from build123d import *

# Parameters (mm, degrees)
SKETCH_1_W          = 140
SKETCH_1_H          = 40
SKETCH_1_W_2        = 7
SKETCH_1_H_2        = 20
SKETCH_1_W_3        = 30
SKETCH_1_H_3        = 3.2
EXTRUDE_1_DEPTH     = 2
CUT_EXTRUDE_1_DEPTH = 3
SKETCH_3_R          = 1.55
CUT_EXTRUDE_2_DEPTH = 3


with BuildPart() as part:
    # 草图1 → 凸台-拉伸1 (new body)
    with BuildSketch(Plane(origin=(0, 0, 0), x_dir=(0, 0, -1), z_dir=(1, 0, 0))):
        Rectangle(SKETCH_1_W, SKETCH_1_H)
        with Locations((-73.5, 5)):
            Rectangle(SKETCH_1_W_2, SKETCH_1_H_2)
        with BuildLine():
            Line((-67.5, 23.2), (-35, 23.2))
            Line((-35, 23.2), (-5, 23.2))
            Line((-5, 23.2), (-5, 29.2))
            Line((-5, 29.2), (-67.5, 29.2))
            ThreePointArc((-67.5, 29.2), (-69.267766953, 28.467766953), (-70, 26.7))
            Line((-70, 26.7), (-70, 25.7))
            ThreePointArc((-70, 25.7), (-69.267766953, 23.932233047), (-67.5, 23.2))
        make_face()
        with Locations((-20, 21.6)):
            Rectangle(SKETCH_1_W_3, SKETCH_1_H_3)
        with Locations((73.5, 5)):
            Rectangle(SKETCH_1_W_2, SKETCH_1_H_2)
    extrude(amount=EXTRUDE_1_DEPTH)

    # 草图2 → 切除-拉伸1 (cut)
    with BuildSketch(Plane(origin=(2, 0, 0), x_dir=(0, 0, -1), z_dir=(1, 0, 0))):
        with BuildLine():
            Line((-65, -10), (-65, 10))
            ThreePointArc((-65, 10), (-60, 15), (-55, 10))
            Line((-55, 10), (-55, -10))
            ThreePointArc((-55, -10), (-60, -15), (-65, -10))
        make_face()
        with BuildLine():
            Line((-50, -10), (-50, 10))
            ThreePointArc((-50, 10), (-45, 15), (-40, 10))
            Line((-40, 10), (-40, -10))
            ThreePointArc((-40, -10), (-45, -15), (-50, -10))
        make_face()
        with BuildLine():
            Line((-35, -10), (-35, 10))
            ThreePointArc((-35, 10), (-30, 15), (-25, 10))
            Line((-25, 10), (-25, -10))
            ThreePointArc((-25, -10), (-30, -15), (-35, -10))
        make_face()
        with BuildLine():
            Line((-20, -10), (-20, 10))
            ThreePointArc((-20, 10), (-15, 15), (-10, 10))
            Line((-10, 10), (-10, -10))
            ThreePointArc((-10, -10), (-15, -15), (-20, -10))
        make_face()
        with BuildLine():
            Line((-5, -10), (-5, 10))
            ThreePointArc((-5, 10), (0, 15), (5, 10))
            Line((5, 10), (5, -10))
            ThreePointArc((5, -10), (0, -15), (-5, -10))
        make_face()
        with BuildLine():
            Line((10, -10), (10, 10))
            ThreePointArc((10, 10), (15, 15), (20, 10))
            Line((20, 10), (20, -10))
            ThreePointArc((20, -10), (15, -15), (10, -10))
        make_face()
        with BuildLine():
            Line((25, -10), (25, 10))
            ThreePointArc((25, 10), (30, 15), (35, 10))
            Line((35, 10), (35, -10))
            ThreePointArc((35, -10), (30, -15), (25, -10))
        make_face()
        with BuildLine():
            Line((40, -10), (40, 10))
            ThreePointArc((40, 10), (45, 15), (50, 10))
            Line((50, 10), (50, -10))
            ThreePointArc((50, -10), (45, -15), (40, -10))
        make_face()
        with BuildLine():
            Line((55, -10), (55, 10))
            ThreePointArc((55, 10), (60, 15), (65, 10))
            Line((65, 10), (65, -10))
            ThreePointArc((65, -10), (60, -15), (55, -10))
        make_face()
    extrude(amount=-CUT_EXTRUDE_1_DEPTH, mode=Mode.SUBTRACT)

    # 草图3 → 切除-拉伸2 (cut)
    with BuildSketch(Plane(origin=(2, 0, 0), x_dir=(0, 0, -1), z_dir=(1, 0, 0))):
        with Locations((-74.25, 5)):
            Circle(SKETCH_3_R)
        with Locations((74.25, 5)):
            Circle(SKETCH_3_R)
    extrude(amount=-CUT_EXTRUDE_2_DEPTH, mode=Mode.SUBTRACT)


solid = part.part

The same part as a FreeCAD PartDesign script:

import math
import FreeCAD as App
import Part
import Sketcher
from FreeCAD import Vector
Q = App.Units.Quantity

doc = App.newDocument("Part")
body = doc.addObject("PartDesign::Body", "Body")

sketch1 = body.newObject("Sketcher::SketchObject", "Sketch")
sketch1.AttachmentSupport = (doc.getObject("YZ_Plane"), [""])
sketch1.MapMode = "FlatFace"
sketch1.addGeometry(Part.LineSegment(Vector(-5, 70, 0), Vector(-20, 70, 0)), False)
sketch1.addGeometry(Part.LineSegment(Vector(-20, 70, 0), Vector(-20, -70, 0)), False)
sketch1.addGeometry(Part.LineSegment(Vector(-20, -70, 0), Vector(-5, -70, 0)), False)
sketch1.addGeometry(Part.LineSegment(Vector(-5, -70, 0), Vector(-5, -77, 0)), False)
sketch1.addGeometry(Part.LineSegment(Vector(-5, -77, 0), Vector(15, -77, 0)), False)
sketch1.addGeometry(Part.LineSegment(Vector(15, -77, 0), Vector(15, -70, 0)), False)
sketch1.addGeometry(Part.LineSegment(Vector(15, -70, 0), Vector(20, -70, 0)), False)
sketch1.addGeometry(Part.LineSegment(Vector(20, -70, 0), Vector(20, 5, 0)), False)
sketch1.addGeometry(Part.LineSegment(Vector(20, 5, 0), Vector(29.2, 5, 0)), False)
sketch1.addGeometry(Part.LineSegment(Vector(29.2, 5, 0), Vector(29.2, 67.5, 0)), False)
sketch1.addGeometry(Part.ArcOfCircle(Part.Circle(Vector(26.7, 67.5, 0), Vector(0, 0, 1), 2.5), math.radians(0), math.radians(90)), False)
sketch1.addGeometry(Part.LineSegment(Vector(26.7, 70, 0), Vector(25.7, 70, 0)), False)
sketch1.addGeometry(Part.ArcOfCircle(Part.Circle(Vector(25.7, 67.5, 0), Vector(0, 0, 1), 2.5), math.radians(90), math.radians(180)), False)
sketch1.addGeometry(Part.LineSegment(Vector(23.2, 67.5, 0), Vector(23.2, 35, 0)), False)
sketch1.addGeometry(Part.LineSegment(Vector(23.2, 35, 0), Vector(20, 35, 0)), False)
sketch1.addGeometry(Part.LineSegment(Vector(20, 35, 0), Vector(20, 70, 0)), False)
sketch1.addGeometry(Part.LineSegment(Vector(20, 70, 0), Vector(15, 70, 0)), False)
sketch1.addGeometry(Part.LineSegment(Vector(15, 70, 0), Vector(15, 77, 0)), False)
sketch1.addGeometry(Part.LineSegment(Vector(15, 77, 0), Vector(-5, 77, 0)), False)
sketch1.addGeometry(Part.LineSegment(Vector(-5, 77, 0), Vector(-5, 70, 0)), False)
sketch1.addConstraint(Sketcher.Constraint("Coincident", 0, 2, 1, 1))
sketch1.addConstraint(Sketcher.Constraint("Coincident", 1, 2, 2, 1))
sketch1.addConstraint(Sketcher.Constraint("Coincident", 2, 2, 3, 1))
sketch1.addConstraint(Sketcher.Constraint("Coincident", 3, 2, 4, 1))
sketch1.addConstraint(Sketcher.Constraint("Coincident", 4, 2, 5, 1))
sketch1.addConstraint(Sketcher.Constraint("Coincident", 5, 2, 6, 1))
sketch1.addConstraint(Sketcher.Constraint("Coincident", 6, 2, 7, 1))
sketch1.addConstraint(Sketcher.Constraint("Coincident", 7, 2, 8, 1))
sketch1.addConstraint(Sketcher.Constraint("Coincident", 8, 2, 9, 1))
sketch1.addConstraint(Sketcher.Constraint("Tangent", 9, 2, 10, 1))
sketch1.addConstraint(Sketcher.Constraint("Tangent", 10, 2, 11, 1))
sketch1.addConstraint(Sketcher.Constraint("Tangent", 11, 2, 12, 1))
sketch1.addConstraint(Sketcher.Constraint("Tangent", 12, 2, 13, 1))
sketch1.addConstraint(Sketcher.Constraint("Coincident", 13, 2, 14, 1))
sketch1.addConstraint(Sketcher.Constraint("Coincident", 14, 2, 15, 1))
sketch1.addConstraint(Sketcher.Constraint("Coincident", 15, 2, 16, 1))
sketch1.addConstraint(Sketcher.Constraint("Coincident", 16, 2, 17, 1))
sketch1.addConstraint(Sketcher.Constraint("Coincident", 17, 2, 18, 1))
sketch1.addConstraint(Sketcher.Constraint("Coincident", 18, 2, 19, 1))
sketch1.addConstraint(Sketcher.Constraint("Coincident", 19, 2, 0, 1))
sketch1.addConstraint(Sketcher.Constraint("Horizontal", 0))
sketch1.addConstraint(Sketcher.Constraint("Vertical", 1))
sketch1.addConstraint(Sketcher.Constraint("Horizontal", 2))
sketch1.addConstraint(Sketcher.Constraint("Vertical", 3))
sketch1.addConstraint(Sketcher.Constraint("Horizontal", 4))
sketch1.addConstraint(Sketcher.Constraint("Vertical", 5))
sketch1.addConstraint(Sketcher.Constraint("Horizontal", 6))
sketch1.addConstraint(Sketcher.Constraint("Vertical", 7))
sketch1.addConstraint(Sketcher.Constraint("Horizontal", 8))
sketch1.addConstraint(Sketcher.Constraint("Vertical", 9))
sketch1.addConstraint(Sketcher.Constraint("Horizontal", 11))
sketch1.addConstraint(Sketcher.Constraint("Vertical", 13))
sketch1.addConstraint(Sketcher.Constraint("Horizontal", 14))
sketch1.addConstraint(Sketcher.Constraint("Vertical", 15))
sketch1.addConstraint(Sketcher.Constraint("Horizontal", 16))
sketch1.addConstraint(Sketcher.Constraint("Vertical", 17))
sketch1.addConstraint(Sketcher.Constraint("Horizontal", 18))
sketch1.addConstraint(Sketcher.Constraint("Vertical", 19))
sketch1.addConstraint(Sketcher.Constraint("Equal", 10, 12))
sketch1.addConstraint(Sketcher.Constraint("Symmetric", 0, 2, 6, 2, -1, 1))
sketch1.addConstraint(Sketcher.Constraint("Symmetric", 1, 2, 15, 2, -1, 1))
sketch1.addConstraint(Sketcher.Constraint("Symmetric", 5, 2, 16, 2, -1))
sketch1.addConstraint(Sketcher.Constraint("Symmetric", 3, 2, 18, 2, -1))
sketch1.addConstraint(Sketcher.Constraint("Horizontal", 0, 2, 10, 2))
sketch1.addConstraint(Sketcher.Constraint("Radius", 10, Q("2.5 mm")))
sketch1.addConstraint(Sketcher.Constraint("DistanceX", 0, 2, 0, 1, Q("15 mm")))
sketch1.addConstraint(Sketcher.Constraint("DistanceX", 4, 1, 4, 2, Q("20 mm")))
sketch1.addConstraint(Sketcher.Constraint("DistanceX", 6, 1, 6, 2, Q("5 mm")))
sketch1.addConstraint(Sketcher.Constraint("DistanceX", 11, 2, 11, 1, Q("1 mm")))
sketch1.addConstraint(Sketcher.Constraint("DistanceY", 1, 2, 1, 1, Q("140 mm")))
sketch1.addConstraint(Sketcher.Constraint("DistanceY", 3, 2, 3, 1, Q("7 mm")))
sketch1.addConstraint(Sketcher.Constraint("DistanceY", 7, 1, 7, 2, Q("75 mm")))
sketch1.addConstraint(Sketcher.Constraint("DistanceY", 15, 1, 15, 2, Q("35 mm")))
sketch1.addConstraint(Sketcher.Constraint("DistanceX", 8, 1, 8, 2, Q("9.2 mm")))
pad1 = body.newObject("PartDesign::Pad", "Pad")
pad1.Profile = sketch1
pad1.Length = 2

sketch2 = body.newObject("Sketcher::SketchObject", "Sketch001")
sketch2.AttachmentSupport = (doc.getObject("YZ_Plane"), [""])
sketch2.MapMode = "FlatFace"
sketch2.AttachmentOffset = App.Placement(Vector(0, 0, 2), App.Rotation())
sketch2.addGeometry(Part.LineSegment(Vector(10, 65, 0), Vector(-10, 65, 0)), False)
sketch2.addGeometry(Part.ArcOfCircle(Part.Circle(Vector(-10, 60, 0), Vector(0, 0, 1), 5), math.radians(90), math.radians(270)), False)
sketch2.addGeometry(Part.LineSegment(Vector(-10, 55, 0), Vector(10, 55, 0)), False)
sketch2.addGeometry(Part.ArcOfCircle(Part.Circle(Vector(10, 60, 0), Vector(0, 0, 1), 5), math.radians(-90), math.radians(90)), False)
sketch2.addGeometry(Part.LineSegment(Vector(10, 50, 0), Vector(-10, 50, 0)), False)
sketch2.addGeometry(Part.ArcOfCircle(Part.Circle(Vector(-10, 45, 0), Vector(0, 0, 1), 5), math.radians(90), math.radians(270)), False)
sketch2.addGeometry(Part.LineSegment(Vector(-10, 40, 0), Vector(10, 40, 0)), False)
sketch2.addGeometry(Part.ArcOfCircle(Part.Circle(Vector(10, 45, 0), Vector(0, 0, 1), 5), math.radians(-90), math.radians(90)), False)
sketch2.addGeometry(Part.LineSegment(Vector(10, 35, 0), Vector(-10, 35, 0)), False)
sketch2.addGeometry(Part.ArcOfCircle(Part.Circle(Vector(-10, 30, 0), Vector(0, 0, 1), 5), math.radians(90), math.radians(270)), False)
sketch2.addGeometry(Part.LineSegment(Vector(-10, 25, 0), Vector(10, 25, 0)), False)
sketch2.addGeometry(Part.ArcOfCircle(Part.Circle(Vector(10, 30, 0), Vector(0, 0, 1), 5), math.radians(-90), math.radians(90)), False)
sketch2.addGeometry(Part.LineSegment(Vector(10, 20, 0), Vector(-10, 20, 0)), False)
sketch2.addGeometry(Part.ArcOfCircle(Part.Circle(Vector(-10, 15, 0), Vector(0, 0, 1), 5), math.radians(90), math.radians(270)), False)
sketch2.addGeometry(Part.LineSegment(Vector(-10, 10, 0), Vector(10, 10, 0)), False)
sketch2.addGeometry(Part.ArcOfCircle(Part.Circle(Vector(10, 15, 0), Vector(0, 0, 1), 5), math.radians(-90), math.radians(90)), False)
sketch2.addGeometry(Part.LineSegment(Vector(10, 5, 0), Vector(-10, 5, 0)), False)
sketch2.addGeometry(Part.ArcOfCircle(Part.Circle(Vector(-10, 0, 0), Vector(0, 0, 1), 5), math.radians(90), math.radians(270)), False)
sketch2.addGeometry(Part.LineSegment(Vector(-10, -5, 0), Vector(10, -5, 0)), False)
sketch2.addGeometry(Part.ArcOfCircle(Part.Circle(Vector(10, 0, 0), Vector(0, 0, 1), 5), math.radians(-90), math.radians(90)), False)
sketch2.addGeometry(Part.LineSegment(Vector(10, -10, 0), Vector(-10, -10, 0)), False)
sketch2.addGeometry(Part.ArcOfCircle(Part.Circle(Vector(-10, -15, 0), Vector(0, 0, 1), 5), math.radians(90), math.radians(270)), False)
sketch2.addGeometry(Part.LineSegment(Vector(-10, -20, 0), Vector(10, -20, 0)), False)
sketch2.addGeometry(Part.ArcOfCircle(Part.Circle(Vector(10, -15, 0), Vector(0, 0, 1), 5), math.radians(-90), math.radians(90)), False)
sketch2.addGeometry(Part.LineSegment(Vector(10, -25, 0), Vector(-10, -25, 0)), False)
sketch2.addGeometry(Part.ArcOfCircle(Part.Circle(Vector(-10, -30, 0), Vector(0, 0, 1), 5), math.radians(90), math.radians(270)), False)
sketch2.addGeometry(Part.LineSegment(Vector(-10, -35, 0), Vector(10, -35, 0)), False)
sketch2.addGeometry(Part.ArcOfCircle(Part.Circle(Vector(10, -30, 0), Vector(0, 0, 1), 5), math.radians(-90), math.radians(90)), False)
sketch2.addGeometry(Part.LineSegment(Vector(10, -40, 0), Vector(-10, -40, 0)), False)
sketch2.addGeometry(Part.ArcOfCircle(Part.Circle(Vector(-10, -45, 0), Vector(0, 0, 1), 5), math.radians(90), math.radians(270)), False)
sketch2.addGeometry(Part.LineSegment(Vector(-10, -50, 0), Vector(10, -50, 0)), False)
sketch2.addGeometry(Part.ArcOfCircle(Part.Circle(Vector(10, -45, 0), Vector(0, 0, 1), 5), math.radians(-90), math.radians(90)), False)
sketch2.addGeometry(Part.LineSegment(Vector(10, -55, 0), Vector(-10, -55, 0)), False)
sketch2.addGeometry(Part.ArcOfCircle(Part.Circle(Vector(-10, -60, 0), Vector(0, 0, 1), 5), math.radians(90), math.radians(270)), False)
sketch2.addGeometry(Part.LineSegment(Vector(-10, -65, 0), Vector(10, -65, 0)), False)
sketch2.addGeometry(Part.ArcOfCircle(Part.Circle(Vector(10, -60, 0), Vector(0, 0, 1), 5), math.radians(-90), math.radians(90)), False)
sketch2.addConstraint(Sketcher.Constraint("Tangent", 0, 2, 1, 1))
sketch2.addConstraint(Sketcher.Constraint("Tangent", 1, 2, 2, 1))
sketch2.addConstraint(Sketcher.Constraint("Tangent", 2, 2, 3, 1))
sketch2.addConstraint(Sketcher.Constraint("Tangent", 3, 2, 0, 1))
sketch2.addConstraint(Sketcher.Constraint("Tangent", 4, 2, 5, 1))
sketch2.addConstraint(Sketcher.Constraint("Tangent", 5, 2, 6, 1))
sketch2.addConstraint(Sketcher.Constraint("Tangent", 6, 2, 7, 1))
sketch2.addConstraint(Sketcher.Constraint("Tangent", 7, 2, 4, 1))
sketch2.addConstraint(Sketcher.Constraint("Tangent", 8, 2, 9, 1))
sketch2.addConstraint(Sketcher.Constraint("Tangent", 9, 2, 10, 1))
sketch2.addConstraint(Sketcher.Constraint("Tangent", 10, 2, 11, 1))
sketch2.addConstraint(Sketcher.Constraint("Tangent", 11, 2, 8, 1))
sketch2.addConstraint(Sketcher.Constraint("Tangent", 12, 2, 13, 1))
sketch2.addConstraint(Sketcher.Constraint("Tangent", 13, 2, 14, 1))
sketch2.addConstraint(Sketcher.Constraint("Tangent", 14, 2, 15, 1))
sketch2.addConstraint(Sketcher.Constraint("Tangent", 15, 2, 12, 1))
sketch2.addConstraint(Sketcher.Constraint("Tangent", 16, 2, 17, 1))
sketch2.addConstraint(Sketcher.Constraint("Tangent", 17, 2, 18, 1))
sketch2.addConstraint(Sketcher.Constraint("Tangent", 18, 2, 19, 1))
sketch2.addConstraint(Sketcher.Constraint("Tangent", 19, 2, 16, 1))
sketch2.addConstraint(Sketcher.Constraint("Tangent", 20, 2, 21, 1))
sketch2.addConstraint(Sketcher.Constraint("Tangent", 21, 2, 22, 1))
sketch2.addConstraint(Sketcher.Constraint("Tangent", 22, 2, 23, 1))
sketch2.addConstraint(Sketcher.Constraint("Tangent", 23, 2, 20, 1))
sketch2.addConstraint(Sketcher.Constraint("Tangent", 24, 2, 25, 1))
sketch2.addConstraint(Sketcher.Constraint("Tangent", 25, 2, 26, 1))
sketch2.addConstraint(Sketcher.Constraint("Tangent", 26, 2, 27, 1))
sketch2.addConstraint(Sketcher.Constraint("Tangent", 27, 2, 24, 1))
sketch2.addConstraint(Sketcher.Constraint("Tangent", 28, 2, 29, 1))
sketch2.addConstraint(Sketcher.Constraint("Tangent", 29, 2, 30, 1))
sketch2.addConstraint(Sketcher.Constraint("Tangent", 30, 2, 31, 1))
sketch2.addConstraint(Sketcher.Constraint("Tangent", 31, 2, 28, 1))
sketch2.addConstraint(Sketcher.Constraint("Tangent", 32, 2, 33, 1))
sketch2.addConstraint(Sketcher.Constraint("Tangent", 33, 2, 34, 1))
sketch2.addConstraint(Sketcher.Constraint("Tangent", 34, 2, 35, 1))
sketch2.addConstraint(Sketcher.Constraint("Tangent", 35, 2, 32, 1))
sketch2.addConstraint(Sketcher.Constraint("Horizontal", 0))
sketch2.addConstraint(Sketcher.Constraint("Horizontal", 2))
sketch2.addConstraint(Sketcher.Constraint("Horizontal", 4))
sketch2.addConstraint(Sketcher.Constraint("Horizontal", 6))
sketch2.addConstraint(Sketcher.Constraint("Horizontal", 8))
sketch2.addConstraint(Sketcher.Constraint("Horizontal", 10))
sketch2.addConstraint(Sketcher.Constraint("Horizontal", 12))
sketch2.addConstraint(Sketcher.Constraint("Horizontal", 14))
sketch2.addConstraint(Sketcher.Constraint("Horizontal", 16))
sketch2.addConstraint(Sketcher.Constraint("Horizontal", 18))
sketch2.addConstraint(Sketcher.Constraint("Horizontal", 20))
sketch2.addConstraint(Sketcher.Constraint("Horizontal", 22))
sketch2.addConstraint(Sketcher.Constraint("Horizontal", 24))
sketch2.addConstraint(Sketcher.Constraint("Horizontal", 26))
sketch2.addConstraint(Sketcher.Constraint("Horizontal", 28))
sketch2.addConstraint(Sketcher.Constraint("Horizontal", 30))
sketch2.addConstraint(Sketcher.Constraint("Horizontal", 32))
sketch2.addConstraint(Sketcher.Constraint("Horizontal", 34))
sketch2.addConstraint(Sketcher.Constraint("Equal", 3, 5))
sketch2.addConstraint(Sketcher.Constraint("Equal", 7, 9))
sketch2.addConstraint(Sketcher.Constraint("Equal", 11, 13))
sketch2.addConstraint(Sketcher.Constraint("Equal", 15, 17))
sketch2.addConstraint(Sketcher.Constraint("Equal", 19, 21))
sketch2.addConstraint(Sketcher.Constraint("Equal", 23, 25))
sketch2.addConstraint(Sketcher.Constraint("Equal", 27, 29))
sketch2.addConstraint(Sketcher.Constraint("Equal", 31, 33))
sketch2.addConstraint(Sketcher.Constraint("Symmetric", 17, 3, 19, 3, -1, 1))
sketch2.addConstraint(Sketcher.Constraint("Symmetric", 15, 3, 21, 3, -1, 1))
sketch2.addConstraint(Sketcher.Constraint("Symmetric", 11, 3, 25, 3, -1, 1))
sketch2.addConstraint(Sketcher.Constraint("Symmetric", 7, 3, 29, 3, -1, 1))
sketch2.addConstraint(Sketcher.Constraint("Symmetric", 3, 3, 33, 3, -1, 1))
sketch2.addConstraint(Sketcher.Constraint("Vertical", 1, 3, 5, 3))
sketch2.addConstraint(Sketcher.Constraint("Vertical", 3, 3, 7, 3))
sketch2.addConstraint(Sketcher.Constraint("Vertical", 5, 3, 9, 3))
sketch2.addConstraint(Sketcher.Constraint("Vertical", 7, 3, 11, 3))
sketch2.addConstraint(Sketcher.Constraint("Vertical", 9, 3, 13, 3))
sketch2.addConstraint(Sketcher.Constraint("Vertical", 11, 3, 15, 3))
sketch2.addConstraint(Sketcher.Constraint("Vertical", 13, 3, 17, 3))
sketch2.addConstraint(Sketcher.Constraint("Vertical", 15, 3, 19, 3))
sketch2.addConstraint(Sketcher.Constraint("Vertical", 19, 3, 23, 3))
sketch2.addConstraint(Sketcher.Constraint("Vertical", 23, 3, 27, 3))
sketch2.addConstraint(Sketcher.Constraint("Vertical", 27, 3, 31, 3))
sketch2.addConstraint(Sketcher.Constraint("Vertical", 31, 3, 35, 3))
sketch2.addConstraint(Sketcher.Constraint("Radius", 1, Q("5 mm")))
sketch2.addConstraint(Sketcher.Constraint("DistanceX", 0, 2, 0, 1, Q("20 mm")))
sketch2.addConstraint(Sketcher.Constraint("DistanceY", -1, 1, 1, 3, Q("60 mm")))
sketch2.addConstraint(Sketcher.Constraint("DistanceY", -1, 1, 5, 3, Q("45 mm")))
sketch2.addConstraint(Sketcher.Constraint("DistanceY", -1, 1, 9, 3, Q("30 mm")))
sketch2.addConstraint(Sketcher.Constraint("DistanceY", -1, 1, 13, 3, Q("15 mm")))
pocket1 = body.newObject("PartDesign::Pocket", "Pocket")
pocket1.Profile = sketch2
pocket1.Length = 3

sketch3 = body.newObject("Sketcher::SketchObject", "Sketch002")
sketch3.AttachmentSupport = (doc.getObject("YZ_Plane"), [""])
sketch3.MapMode = "FlatFace"
sketch3.AttachmentOffset = App.Placement(Vector(0, 0, 2), App.Rotation())
sketch3.addGeometry(Part.Circle(Vector(5, 74.2, 0), Vector(0, 0, 1), 1.6), False)
sketch3.addGeometry(Part.Circle(Vector(5, -74.2, 0), Vector(0, 0, 1), 1.6), False)
sketch3.addConstraint(Sketcher.Constraint("Equal", 0, 1))
sketch3.addConstraint(Sketcher.Constraint("Symmetric", 0, 3, 1, 3, -1))
sketch3.addConstraint(Sketcher.Constraint("Diameter", 0, Q("3.1 mm")))
sketch3.addConstraint(Sketcher.Constraint("DistanceX", -1, 1, 0, 3, Q("5 mm")))
sketch3.addConstraint(Sketcher.Constraint("DistanceY", 1, 3, 0, 3, Q("148.5 mm")))
pocket2 = body.newObject("PartDesign::Pocket", "Pocket001")
pocket2.Profile = sketch3
pocket2.Length = 3

doc.recompute()
